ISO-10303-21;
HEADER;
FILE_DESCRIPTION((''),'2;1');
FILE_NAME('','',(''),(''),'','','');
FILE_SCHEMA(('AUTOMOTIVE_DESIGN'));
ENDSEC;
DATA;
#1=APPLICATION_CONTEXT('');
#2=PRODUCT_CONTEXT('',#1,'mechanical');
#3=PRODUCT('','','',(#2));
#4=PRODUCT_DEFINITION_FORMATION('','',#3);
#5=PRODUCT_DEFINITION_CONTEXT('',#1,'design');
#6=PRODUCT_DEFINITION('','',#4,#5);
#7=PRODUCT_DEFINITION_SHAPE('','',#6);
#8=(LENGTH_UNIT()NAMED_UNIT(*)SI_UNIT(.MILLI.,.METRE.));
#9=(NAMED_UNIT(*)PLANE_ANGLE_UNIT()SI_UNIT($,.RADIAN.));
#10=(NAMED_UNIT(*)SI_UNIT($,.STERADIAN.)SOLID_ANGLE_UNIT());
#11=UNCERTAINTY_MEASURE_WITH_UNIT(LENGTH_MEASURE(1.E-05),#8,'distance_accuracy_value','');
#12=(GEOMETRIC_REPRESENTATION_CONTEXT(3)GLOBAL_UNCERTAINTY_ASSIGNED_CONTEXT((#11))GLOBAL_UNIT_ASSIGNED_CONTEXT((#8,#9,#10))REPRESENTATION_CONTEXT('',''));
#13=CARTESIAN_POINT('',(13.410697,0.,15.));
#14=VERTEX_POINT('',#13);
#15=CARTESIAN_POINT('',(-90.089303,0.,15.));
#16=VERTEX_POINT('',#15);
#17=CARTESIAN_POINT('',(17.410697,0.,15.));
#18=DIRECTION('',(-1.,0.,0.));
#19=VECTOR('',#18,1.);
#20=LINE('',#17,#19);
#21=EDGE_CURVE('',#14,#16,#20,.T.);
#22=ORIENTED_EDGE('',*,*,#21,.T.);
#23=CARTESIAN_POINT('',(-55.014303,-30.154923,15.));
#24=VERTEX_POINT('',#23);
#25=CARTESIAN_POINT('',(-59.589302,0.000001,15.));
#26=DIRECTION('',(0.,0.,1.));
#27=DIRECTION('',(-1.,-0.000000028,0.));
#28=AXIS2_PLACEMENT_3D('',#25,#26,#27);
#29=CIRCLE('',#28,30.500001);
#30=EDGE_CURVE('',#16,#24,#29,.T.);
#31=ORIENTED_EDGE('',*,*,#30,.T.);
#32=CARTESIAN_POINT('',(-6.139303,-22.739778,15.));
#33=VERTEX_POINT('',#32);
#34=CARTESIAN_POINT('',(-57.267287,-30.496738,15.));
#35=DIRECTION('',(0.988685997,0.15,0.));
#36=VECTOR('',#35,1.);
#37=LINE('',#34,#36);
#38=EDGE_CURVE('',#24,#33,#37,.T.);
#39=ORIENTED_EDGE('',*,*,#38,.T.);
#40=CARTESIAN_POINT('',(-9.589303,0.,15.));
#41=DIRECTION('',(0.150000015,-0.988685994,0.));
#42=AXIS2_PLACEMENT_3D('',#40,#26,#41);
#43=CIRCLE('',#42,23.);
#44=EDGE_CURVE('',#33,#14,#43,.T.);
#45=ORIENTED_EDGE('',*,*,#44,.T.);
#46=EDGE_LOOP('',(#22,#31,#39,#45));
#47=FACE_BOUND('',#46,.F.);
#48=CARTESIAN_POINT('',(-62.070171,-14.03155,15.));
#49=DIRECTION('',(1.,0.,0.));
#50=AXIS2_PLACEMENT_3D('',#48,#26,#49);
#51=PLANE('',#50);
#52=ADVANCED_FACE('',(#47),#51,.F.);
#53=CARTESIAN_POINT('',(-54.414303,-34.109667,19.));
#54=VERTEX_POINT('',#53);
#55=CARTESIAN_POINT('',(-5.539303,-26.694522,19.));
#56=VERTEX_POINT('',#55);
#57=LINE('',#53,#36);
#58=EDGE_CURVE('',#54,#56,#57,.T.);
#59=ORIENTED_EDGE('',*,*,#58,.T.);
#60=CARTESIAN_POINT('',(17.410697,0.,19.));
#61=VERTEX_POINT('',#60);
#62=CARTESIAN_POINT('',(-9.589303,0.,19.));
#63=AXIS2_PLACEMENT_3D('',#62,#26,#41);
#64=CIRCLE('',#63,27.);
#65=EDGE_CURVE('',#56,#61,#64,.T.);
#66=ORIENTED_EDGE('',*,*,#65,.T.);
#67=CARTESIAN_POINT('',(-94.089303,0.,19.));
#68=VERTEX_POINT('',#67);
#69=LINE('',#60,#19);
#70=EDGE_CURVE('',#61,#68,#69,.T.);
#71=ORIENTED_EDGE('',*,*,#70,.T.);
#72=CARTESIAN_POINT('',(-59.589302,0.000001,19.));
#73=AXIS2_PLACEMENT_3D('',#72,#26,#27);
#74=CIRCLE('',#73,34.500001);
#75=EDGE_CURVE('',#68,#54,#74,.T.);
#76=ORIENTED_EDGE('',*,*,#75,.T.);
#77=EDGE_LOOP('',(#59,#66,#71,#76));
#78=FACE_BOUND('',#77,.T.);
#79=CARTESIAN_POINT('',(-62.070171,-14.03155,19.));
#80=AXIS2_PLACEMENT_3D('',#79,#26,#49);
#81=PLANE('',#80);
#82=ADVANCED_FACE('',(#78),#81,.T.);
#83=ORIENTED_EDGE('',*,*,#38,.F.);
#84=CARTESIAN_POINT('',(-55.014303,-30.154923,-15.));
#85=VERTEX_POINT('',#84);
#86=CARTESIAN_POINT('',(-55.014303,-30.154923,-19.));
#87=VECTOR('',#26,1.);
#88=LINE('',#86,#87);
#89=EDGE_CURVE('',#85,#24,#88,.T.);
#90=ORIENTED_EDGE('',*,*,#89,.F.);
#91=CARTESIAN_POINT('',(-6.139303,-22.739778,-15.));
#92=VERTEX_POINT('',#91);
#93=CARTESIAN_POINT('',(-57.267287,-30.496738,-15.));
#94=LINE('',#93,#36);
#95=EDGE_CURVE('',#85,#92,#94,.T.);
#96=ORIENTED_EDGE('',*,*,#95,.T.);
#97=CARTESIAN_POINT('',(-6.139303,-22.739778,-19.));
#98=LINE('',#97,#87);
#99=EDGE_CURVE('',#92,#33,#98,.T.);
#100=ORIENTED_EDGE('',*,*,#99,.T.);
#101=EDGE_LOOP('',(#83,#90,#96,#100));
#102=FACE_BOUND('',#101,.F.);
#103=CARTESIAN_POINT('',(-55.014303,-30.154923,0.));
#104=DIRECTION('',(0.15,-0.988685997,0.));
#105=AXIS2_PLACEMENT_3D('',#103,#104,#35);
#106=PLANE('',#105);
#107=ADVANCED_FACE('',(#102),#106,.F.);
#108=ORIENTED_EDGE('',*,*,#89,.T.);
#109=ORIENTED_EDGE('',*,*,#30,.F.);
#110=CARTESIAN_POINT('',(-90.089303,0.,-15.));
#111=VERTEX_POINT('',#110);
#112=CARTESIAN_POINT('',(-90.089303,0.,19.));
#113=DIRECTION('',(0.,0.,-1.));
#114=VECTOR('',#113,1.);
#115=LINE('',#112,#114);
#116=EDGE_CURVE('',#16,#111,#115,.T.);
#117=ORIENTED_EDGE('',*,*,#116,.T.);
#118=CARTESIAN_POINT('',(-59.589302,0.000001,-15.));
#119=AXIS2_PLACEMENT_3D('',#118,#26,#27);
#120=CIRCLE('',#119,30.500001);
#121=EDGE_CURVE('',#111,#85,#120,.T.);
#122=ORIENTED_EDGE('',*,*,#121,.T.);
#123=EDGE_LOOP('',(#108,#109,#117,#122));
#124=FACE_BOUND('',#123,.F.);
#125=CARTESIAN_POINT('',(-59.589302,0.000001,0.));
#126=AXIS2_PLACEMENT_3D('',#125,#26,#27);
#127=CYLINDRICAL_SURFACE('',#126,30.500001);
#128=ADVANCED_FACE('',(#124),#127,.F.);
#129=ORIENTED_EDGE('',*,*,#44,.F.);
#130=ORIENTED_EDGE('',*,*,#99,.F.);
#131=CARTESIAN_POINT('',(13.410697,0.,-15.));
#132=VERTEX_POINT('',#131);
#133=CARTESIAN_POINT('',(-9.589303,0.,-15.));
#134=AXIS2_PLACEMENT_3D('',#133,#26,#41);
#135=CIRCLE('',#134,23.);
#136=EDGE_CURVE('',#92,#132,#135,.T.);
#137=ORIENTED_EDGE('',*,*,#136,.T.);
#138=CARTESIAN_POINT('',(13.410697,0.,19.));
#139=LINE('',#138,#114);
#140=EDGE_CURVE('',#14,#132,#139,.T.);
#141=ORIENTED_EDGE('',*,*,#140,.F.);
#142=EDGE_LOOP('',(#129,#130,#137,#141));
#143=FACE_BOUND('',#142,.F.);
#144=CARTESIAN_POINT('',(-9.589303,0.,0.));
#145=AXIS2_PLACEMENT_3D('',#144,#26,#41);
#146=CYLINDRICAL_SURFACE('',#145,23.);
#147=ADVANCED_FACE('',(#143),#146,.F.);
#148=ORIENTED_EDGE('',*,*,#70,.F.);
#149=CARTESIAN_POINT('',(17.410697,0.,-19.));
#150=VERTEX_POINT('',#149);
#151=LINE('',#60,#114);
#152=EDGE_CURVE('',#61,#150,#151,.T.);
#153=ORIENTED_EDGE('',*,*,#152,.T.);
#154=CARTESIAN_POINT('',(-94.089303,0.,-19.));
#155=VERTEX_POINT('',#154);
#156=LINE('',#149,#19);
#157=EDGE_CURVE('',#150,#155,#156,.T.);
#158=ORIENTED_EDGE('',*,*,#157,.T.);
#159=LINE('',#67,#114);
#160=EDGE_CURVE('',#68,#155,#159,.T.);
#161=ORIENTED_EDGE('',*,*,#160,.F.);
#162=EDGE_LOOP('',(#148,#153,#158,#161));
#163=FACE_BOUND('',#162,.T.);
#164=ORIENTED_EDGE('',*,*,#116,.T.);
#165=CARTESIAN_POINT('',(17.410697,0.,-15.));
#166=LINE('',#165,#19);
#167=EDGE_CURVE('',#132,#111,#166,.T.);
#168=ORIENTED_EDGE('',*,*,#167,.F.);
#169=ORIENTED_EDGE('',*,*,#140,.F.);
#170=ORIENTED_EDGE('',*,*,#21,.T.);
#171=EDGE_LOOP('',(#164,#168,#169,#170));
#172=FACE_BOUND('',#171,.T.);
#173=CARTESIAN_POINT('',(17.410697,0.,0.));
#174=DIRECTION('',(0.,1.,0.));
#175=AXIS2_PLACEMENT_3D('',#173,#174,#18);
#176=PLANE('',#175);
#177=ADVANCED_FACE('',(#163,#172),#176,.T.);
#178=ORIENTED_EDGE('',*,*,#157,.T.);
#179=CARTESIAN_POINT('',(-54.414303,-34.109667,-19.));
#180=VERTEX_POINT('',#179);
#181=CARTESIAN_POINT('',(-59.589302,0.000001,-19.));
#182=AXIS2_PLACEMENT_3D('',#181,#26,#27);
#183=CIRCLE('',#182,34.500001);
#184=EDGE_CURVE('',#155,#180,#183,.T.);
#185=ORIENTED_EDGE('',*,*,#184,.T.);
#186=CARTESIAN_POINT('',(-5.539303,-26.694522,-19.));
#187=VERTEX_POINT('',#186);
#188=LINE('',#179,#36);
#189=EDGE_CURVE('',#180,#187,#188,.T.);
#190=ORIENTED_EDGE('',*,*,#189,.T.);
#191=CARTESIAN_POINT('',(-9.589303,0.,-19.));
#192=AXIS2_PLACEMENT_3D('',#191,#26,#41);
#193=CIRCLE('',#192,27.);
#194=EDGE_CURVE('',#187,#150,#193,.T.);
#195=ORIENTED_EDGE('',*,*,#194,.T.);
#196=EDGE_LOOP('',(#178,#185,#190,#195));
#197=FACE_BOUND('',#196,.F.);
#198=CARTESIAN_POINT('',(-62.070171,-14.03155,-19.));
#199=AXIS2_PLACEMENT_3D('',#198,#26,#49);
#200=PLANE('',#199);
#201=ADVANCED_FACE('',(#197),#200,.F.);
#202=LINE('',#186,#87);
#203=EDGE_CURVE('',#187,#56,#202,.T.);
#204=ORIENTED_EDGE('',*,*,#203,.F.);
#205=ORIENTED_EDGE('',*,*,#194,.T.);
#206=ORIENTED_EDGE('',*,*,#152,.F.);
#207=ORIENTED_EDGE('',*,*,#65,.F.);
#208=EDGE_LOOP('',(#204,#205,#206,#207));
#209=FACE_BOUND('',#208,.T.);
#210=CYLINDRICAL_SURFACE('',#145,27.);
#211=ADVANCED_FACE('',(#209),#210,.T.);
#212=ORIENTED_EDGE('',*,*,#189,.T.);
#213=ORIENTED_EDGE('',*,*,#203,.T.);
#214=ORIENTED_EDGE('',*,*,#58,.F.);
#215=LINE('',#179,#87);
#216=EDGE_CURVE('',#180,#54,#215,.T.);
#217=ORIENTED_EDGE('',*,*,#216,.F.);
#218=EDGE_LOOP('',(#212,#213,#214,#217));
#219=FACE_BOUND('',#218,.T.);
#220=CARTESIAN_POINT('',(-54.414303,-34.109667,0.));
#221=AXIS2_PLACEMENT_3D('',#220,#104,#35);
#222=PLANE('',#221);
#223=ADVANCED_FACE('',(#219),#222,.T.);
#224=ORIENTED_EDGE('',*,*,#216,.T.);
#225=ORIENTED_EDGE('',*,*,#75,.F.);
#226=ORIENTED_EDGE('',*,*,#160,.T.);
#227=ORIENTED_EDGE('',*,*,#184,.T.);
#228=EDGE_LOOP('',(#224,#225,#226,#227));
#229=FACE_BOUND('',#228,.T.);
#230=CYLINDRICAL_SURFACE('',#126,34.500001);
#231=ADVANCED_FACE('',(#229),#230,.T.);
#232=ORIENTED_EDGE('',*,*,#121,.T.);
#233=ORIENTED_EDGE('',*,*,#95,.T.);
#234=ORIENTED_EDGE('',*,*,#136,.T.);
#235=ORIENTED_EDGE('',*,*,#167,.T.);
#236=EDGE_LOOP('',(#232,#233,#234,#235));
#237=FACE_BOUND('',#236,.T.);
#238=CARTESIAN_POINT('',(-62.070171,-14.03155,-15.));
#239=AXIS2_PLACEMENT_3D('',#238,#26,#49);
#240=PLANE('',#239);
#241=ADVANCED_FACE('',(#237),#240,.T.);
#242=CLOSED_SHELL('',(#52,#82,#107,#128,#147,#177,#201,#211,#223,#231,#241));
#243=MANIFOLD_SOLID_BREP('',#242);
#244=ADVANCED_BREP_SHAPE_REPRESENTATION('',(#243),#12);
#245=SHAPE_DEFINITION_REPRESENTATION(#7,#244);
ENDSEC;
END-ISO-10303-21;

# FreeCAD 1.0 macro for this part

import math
import FreeCAD as App
import Part
import Sketcher

V = App.Vector
Q = App.Units.Quantity


def faces_at(feature, points):
    """Names of the faces that lie closest to the given points."""
    faces = feature.Shape.Faces
    near = lambda p: min(range(len(faces)), key=lambda i: faces[i].distToShape(Part.Vertex(*p))[0])
    return sorted({f"Face{near(p) + 1}" for p in points})

doc = App.newDocument("Part")
body = doc.addObject("PartDesign::Body", "Body")

# Sketch on XY plane
sketch1 = body.newObject("Sketcher::SketchObject", "Sketch")
sketch1.AttachmentSupport = (doc.getObject("XY_Plane"), [""])
sketch1.MapMode = "FlatFace"
sketch1.addGeometry([
    Part.ArcOfCircle(Part.Circle(V(-60, 0, 0), V(0, 0, 1), 35), math.radians(-180), math.radians(-81)),
    Part.LineSegment(V(-54, -34, 0), V(-6, -27, 0)),
    Part.ArcOfCircle(Part.Circle(V(-10, 0, 0), V(0, 0, 1), 27), math.radians(-81), math.radians(0)),
    Part.LineSegment(V(17, 0, 0), V(-94, 0, 0)),
], False)
sketch1.addConstraint([
    Sketcher.Constraint("Tangent", 0, 2, 1, 1),
    Sketcher.Constraint("Tangent", 1, 2, 2, 1),
    Sketcher.Constraint("Coincident", 2, 2, 3, 1),
    Sketcher.Constraint("Coincident", 3, 2, 0, 1),
    Sketcher.Constraint("Horizontal", 3),
    Sketcher.Constraint("PointOnObject", 0, 3, -1),
    Sketcher.Constraint("PointOnObject", 2, 3, -1),
    Sketcher.Constraint("PointOnObject", 2, 2, -1),
    Sketcher.Constraint("Radius", 2, Q("27 mm")),
    Sketcher.Constraint("Radius", 0, Q("34.500001 mm")),
    Sketcher.Constraint("DistanceX", 3, 2, 3, 1, Q("111.5 mm")),
    Sketcher.Constraint("DistanceX", 0, 3, -1, 1, Q("59.589302 mm")),
])
pad1 = body.newObject("PartDesign::Pad", "Pad")
pad1.Profile = sketch1
pad1.Length = 38
pad1.Midplane = True
doc.recompute()

thickness = body.newObject("PartDesign::Thickness", "Thickness")
thickness.Base = (pad1, faces_at(pad1, [(-38.339, 0, 0)]))
thickness.Value = 4
thickness.Reversed = True
thickness.Join = "Arc"

doc.recompute()
